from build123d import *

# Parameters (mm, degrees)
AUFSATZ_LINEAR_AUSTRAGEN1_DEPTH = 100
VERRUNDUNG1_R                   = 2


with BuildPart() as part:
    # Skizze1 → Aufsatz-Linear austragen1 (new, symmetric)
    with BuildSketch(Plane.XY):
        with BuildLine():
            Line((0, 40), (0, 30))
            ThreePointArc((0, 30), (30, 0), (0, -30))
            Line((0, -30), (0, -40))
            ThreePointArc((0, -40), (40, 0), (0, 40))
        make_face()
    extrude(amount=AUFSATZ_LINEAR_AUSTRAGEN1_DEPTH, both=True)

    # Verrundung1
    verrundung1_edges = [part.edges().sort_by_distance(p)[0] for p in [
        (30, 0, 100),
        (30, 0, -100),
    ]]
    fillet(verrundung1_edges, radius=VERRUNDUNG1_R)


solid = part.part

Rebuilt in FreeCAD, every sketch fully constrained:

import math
import FreeCAD as App
import Part
import Sketcher

V = App.Vector
Q = App.Units.Quantity


def edges_at(feature, points):
    """Names of the edges that pass closest to the given points."""
    edges = feature.Shape.Edges
    near = lambda p: min(range(len(edges)), key=lambda i: edges[i].distToShape(Part.Vertex(*p))[0])
    return sorted({f"Edge{near(p) + 1}" for p in points})

doc = App.newDocument("Part")
params = doc.addObject("Spreadsheet::Sheet", "Params")
for row, (alias, value) in enumerate([
    ("sketch1_radius", "30 mm"),
    ("sketch1_radius2", "40 mm"),
    ("pad1_length", "200 mm"),
    ("fillet_radius", "2 mm"),
], start=1):
    params.set(f"A{row}", alias)
    params.set(f"B{row}", "=" + value)
    params.setAlias(f"B{row}", alias)

body = doc.addObject("PartDesign::Body", "Body")

sketch1 = body.newObject("Sketcher::SketchObject", "Sketch")
sketch1.AttachmentSupport = (doc.getObject("XY_Plane"), [""])
sketch1.MapMode = "FlatFace"
sketch1.addGeometry(Part.LineSegment(V(0, 40, 0), V(0, 30, 0)), False)
sketch1.addGeometry(Part.ArcOfCircle(Part.Circle(V(0, 0, 0), V(0, 0, 1), 30), math.radians(-90), math.radians(90)), False)
sketch1.addGeometry(Part.LineSegment(V(0, -30, 0), V(0, -40, 0)), False)
sketch1.addGeometry(Part.ArcOfCircle(Part.Circle(V(0, 0, 0), V(0, 0, 1), 40), math.radians(-90), math.radians(90)), False)
sketch1.addConstraint(Sketcher.Constraint("Coincident", 0, 2, 1, 2))
sketch1.addConstraint(Sketcher.Constraint("Coincident", 1, 1, 2, 1))
sketch1.addConstraint(Sketcher.Constraint("Coincident", 2, 2, 3, 1))
sketch1.addConstraint(Sketcher.Constraint("Coincident", 3, 2, 0, 1))
sketch1.addConstraint(Sketcher.Constraint("Vertical", 0))
sketch1.addConstraint(Sketcher.Constraint("Vertical", 2))
sketch1.addConstraint(Sketcher.Constraint("Coincident", 1, 3, -1, 1))
sketch1.addConstraint(Sketcher.Constraint("Coincident", 3, 3, -1, 1))
sketch1.addConstraint(Sketcher.Constraint("PointOnObject", 0, 2, -2))
sketch1.addConstraint(Sketcher.Constraint("PointOnObject", 1, 1, -2))
sketch1.addConstraint(Sketcher.Constraint("Radius", 1, Q("30 mm")))
sketch1.addConstraint(Sketcher.Constraint("Radius", 3, Q("40 mm")))
sketch1.setExpression("Constraints[10]", "Params.sketch1_radius")
sketch1.setExpression("Constraints[11]", "Params.sketch1_radius2")
pad1 = body.newObject("PartDesign::Pad", "Pad")
pad1.Profile = sketch1
pad1.setExpression("Length", "Params.pad1_length")
pad1.Midplane = True
doc.recompute()

fillet = body.newObject("PartDesign::Fillet", "Fillet")
fillet.Base = (pad1, edges_at(pad1, [(30, 0, 100), (30, 0, -100)]))
fillet.setExpression("Radius", "Params.fillet_radius")

doc.recompute()
